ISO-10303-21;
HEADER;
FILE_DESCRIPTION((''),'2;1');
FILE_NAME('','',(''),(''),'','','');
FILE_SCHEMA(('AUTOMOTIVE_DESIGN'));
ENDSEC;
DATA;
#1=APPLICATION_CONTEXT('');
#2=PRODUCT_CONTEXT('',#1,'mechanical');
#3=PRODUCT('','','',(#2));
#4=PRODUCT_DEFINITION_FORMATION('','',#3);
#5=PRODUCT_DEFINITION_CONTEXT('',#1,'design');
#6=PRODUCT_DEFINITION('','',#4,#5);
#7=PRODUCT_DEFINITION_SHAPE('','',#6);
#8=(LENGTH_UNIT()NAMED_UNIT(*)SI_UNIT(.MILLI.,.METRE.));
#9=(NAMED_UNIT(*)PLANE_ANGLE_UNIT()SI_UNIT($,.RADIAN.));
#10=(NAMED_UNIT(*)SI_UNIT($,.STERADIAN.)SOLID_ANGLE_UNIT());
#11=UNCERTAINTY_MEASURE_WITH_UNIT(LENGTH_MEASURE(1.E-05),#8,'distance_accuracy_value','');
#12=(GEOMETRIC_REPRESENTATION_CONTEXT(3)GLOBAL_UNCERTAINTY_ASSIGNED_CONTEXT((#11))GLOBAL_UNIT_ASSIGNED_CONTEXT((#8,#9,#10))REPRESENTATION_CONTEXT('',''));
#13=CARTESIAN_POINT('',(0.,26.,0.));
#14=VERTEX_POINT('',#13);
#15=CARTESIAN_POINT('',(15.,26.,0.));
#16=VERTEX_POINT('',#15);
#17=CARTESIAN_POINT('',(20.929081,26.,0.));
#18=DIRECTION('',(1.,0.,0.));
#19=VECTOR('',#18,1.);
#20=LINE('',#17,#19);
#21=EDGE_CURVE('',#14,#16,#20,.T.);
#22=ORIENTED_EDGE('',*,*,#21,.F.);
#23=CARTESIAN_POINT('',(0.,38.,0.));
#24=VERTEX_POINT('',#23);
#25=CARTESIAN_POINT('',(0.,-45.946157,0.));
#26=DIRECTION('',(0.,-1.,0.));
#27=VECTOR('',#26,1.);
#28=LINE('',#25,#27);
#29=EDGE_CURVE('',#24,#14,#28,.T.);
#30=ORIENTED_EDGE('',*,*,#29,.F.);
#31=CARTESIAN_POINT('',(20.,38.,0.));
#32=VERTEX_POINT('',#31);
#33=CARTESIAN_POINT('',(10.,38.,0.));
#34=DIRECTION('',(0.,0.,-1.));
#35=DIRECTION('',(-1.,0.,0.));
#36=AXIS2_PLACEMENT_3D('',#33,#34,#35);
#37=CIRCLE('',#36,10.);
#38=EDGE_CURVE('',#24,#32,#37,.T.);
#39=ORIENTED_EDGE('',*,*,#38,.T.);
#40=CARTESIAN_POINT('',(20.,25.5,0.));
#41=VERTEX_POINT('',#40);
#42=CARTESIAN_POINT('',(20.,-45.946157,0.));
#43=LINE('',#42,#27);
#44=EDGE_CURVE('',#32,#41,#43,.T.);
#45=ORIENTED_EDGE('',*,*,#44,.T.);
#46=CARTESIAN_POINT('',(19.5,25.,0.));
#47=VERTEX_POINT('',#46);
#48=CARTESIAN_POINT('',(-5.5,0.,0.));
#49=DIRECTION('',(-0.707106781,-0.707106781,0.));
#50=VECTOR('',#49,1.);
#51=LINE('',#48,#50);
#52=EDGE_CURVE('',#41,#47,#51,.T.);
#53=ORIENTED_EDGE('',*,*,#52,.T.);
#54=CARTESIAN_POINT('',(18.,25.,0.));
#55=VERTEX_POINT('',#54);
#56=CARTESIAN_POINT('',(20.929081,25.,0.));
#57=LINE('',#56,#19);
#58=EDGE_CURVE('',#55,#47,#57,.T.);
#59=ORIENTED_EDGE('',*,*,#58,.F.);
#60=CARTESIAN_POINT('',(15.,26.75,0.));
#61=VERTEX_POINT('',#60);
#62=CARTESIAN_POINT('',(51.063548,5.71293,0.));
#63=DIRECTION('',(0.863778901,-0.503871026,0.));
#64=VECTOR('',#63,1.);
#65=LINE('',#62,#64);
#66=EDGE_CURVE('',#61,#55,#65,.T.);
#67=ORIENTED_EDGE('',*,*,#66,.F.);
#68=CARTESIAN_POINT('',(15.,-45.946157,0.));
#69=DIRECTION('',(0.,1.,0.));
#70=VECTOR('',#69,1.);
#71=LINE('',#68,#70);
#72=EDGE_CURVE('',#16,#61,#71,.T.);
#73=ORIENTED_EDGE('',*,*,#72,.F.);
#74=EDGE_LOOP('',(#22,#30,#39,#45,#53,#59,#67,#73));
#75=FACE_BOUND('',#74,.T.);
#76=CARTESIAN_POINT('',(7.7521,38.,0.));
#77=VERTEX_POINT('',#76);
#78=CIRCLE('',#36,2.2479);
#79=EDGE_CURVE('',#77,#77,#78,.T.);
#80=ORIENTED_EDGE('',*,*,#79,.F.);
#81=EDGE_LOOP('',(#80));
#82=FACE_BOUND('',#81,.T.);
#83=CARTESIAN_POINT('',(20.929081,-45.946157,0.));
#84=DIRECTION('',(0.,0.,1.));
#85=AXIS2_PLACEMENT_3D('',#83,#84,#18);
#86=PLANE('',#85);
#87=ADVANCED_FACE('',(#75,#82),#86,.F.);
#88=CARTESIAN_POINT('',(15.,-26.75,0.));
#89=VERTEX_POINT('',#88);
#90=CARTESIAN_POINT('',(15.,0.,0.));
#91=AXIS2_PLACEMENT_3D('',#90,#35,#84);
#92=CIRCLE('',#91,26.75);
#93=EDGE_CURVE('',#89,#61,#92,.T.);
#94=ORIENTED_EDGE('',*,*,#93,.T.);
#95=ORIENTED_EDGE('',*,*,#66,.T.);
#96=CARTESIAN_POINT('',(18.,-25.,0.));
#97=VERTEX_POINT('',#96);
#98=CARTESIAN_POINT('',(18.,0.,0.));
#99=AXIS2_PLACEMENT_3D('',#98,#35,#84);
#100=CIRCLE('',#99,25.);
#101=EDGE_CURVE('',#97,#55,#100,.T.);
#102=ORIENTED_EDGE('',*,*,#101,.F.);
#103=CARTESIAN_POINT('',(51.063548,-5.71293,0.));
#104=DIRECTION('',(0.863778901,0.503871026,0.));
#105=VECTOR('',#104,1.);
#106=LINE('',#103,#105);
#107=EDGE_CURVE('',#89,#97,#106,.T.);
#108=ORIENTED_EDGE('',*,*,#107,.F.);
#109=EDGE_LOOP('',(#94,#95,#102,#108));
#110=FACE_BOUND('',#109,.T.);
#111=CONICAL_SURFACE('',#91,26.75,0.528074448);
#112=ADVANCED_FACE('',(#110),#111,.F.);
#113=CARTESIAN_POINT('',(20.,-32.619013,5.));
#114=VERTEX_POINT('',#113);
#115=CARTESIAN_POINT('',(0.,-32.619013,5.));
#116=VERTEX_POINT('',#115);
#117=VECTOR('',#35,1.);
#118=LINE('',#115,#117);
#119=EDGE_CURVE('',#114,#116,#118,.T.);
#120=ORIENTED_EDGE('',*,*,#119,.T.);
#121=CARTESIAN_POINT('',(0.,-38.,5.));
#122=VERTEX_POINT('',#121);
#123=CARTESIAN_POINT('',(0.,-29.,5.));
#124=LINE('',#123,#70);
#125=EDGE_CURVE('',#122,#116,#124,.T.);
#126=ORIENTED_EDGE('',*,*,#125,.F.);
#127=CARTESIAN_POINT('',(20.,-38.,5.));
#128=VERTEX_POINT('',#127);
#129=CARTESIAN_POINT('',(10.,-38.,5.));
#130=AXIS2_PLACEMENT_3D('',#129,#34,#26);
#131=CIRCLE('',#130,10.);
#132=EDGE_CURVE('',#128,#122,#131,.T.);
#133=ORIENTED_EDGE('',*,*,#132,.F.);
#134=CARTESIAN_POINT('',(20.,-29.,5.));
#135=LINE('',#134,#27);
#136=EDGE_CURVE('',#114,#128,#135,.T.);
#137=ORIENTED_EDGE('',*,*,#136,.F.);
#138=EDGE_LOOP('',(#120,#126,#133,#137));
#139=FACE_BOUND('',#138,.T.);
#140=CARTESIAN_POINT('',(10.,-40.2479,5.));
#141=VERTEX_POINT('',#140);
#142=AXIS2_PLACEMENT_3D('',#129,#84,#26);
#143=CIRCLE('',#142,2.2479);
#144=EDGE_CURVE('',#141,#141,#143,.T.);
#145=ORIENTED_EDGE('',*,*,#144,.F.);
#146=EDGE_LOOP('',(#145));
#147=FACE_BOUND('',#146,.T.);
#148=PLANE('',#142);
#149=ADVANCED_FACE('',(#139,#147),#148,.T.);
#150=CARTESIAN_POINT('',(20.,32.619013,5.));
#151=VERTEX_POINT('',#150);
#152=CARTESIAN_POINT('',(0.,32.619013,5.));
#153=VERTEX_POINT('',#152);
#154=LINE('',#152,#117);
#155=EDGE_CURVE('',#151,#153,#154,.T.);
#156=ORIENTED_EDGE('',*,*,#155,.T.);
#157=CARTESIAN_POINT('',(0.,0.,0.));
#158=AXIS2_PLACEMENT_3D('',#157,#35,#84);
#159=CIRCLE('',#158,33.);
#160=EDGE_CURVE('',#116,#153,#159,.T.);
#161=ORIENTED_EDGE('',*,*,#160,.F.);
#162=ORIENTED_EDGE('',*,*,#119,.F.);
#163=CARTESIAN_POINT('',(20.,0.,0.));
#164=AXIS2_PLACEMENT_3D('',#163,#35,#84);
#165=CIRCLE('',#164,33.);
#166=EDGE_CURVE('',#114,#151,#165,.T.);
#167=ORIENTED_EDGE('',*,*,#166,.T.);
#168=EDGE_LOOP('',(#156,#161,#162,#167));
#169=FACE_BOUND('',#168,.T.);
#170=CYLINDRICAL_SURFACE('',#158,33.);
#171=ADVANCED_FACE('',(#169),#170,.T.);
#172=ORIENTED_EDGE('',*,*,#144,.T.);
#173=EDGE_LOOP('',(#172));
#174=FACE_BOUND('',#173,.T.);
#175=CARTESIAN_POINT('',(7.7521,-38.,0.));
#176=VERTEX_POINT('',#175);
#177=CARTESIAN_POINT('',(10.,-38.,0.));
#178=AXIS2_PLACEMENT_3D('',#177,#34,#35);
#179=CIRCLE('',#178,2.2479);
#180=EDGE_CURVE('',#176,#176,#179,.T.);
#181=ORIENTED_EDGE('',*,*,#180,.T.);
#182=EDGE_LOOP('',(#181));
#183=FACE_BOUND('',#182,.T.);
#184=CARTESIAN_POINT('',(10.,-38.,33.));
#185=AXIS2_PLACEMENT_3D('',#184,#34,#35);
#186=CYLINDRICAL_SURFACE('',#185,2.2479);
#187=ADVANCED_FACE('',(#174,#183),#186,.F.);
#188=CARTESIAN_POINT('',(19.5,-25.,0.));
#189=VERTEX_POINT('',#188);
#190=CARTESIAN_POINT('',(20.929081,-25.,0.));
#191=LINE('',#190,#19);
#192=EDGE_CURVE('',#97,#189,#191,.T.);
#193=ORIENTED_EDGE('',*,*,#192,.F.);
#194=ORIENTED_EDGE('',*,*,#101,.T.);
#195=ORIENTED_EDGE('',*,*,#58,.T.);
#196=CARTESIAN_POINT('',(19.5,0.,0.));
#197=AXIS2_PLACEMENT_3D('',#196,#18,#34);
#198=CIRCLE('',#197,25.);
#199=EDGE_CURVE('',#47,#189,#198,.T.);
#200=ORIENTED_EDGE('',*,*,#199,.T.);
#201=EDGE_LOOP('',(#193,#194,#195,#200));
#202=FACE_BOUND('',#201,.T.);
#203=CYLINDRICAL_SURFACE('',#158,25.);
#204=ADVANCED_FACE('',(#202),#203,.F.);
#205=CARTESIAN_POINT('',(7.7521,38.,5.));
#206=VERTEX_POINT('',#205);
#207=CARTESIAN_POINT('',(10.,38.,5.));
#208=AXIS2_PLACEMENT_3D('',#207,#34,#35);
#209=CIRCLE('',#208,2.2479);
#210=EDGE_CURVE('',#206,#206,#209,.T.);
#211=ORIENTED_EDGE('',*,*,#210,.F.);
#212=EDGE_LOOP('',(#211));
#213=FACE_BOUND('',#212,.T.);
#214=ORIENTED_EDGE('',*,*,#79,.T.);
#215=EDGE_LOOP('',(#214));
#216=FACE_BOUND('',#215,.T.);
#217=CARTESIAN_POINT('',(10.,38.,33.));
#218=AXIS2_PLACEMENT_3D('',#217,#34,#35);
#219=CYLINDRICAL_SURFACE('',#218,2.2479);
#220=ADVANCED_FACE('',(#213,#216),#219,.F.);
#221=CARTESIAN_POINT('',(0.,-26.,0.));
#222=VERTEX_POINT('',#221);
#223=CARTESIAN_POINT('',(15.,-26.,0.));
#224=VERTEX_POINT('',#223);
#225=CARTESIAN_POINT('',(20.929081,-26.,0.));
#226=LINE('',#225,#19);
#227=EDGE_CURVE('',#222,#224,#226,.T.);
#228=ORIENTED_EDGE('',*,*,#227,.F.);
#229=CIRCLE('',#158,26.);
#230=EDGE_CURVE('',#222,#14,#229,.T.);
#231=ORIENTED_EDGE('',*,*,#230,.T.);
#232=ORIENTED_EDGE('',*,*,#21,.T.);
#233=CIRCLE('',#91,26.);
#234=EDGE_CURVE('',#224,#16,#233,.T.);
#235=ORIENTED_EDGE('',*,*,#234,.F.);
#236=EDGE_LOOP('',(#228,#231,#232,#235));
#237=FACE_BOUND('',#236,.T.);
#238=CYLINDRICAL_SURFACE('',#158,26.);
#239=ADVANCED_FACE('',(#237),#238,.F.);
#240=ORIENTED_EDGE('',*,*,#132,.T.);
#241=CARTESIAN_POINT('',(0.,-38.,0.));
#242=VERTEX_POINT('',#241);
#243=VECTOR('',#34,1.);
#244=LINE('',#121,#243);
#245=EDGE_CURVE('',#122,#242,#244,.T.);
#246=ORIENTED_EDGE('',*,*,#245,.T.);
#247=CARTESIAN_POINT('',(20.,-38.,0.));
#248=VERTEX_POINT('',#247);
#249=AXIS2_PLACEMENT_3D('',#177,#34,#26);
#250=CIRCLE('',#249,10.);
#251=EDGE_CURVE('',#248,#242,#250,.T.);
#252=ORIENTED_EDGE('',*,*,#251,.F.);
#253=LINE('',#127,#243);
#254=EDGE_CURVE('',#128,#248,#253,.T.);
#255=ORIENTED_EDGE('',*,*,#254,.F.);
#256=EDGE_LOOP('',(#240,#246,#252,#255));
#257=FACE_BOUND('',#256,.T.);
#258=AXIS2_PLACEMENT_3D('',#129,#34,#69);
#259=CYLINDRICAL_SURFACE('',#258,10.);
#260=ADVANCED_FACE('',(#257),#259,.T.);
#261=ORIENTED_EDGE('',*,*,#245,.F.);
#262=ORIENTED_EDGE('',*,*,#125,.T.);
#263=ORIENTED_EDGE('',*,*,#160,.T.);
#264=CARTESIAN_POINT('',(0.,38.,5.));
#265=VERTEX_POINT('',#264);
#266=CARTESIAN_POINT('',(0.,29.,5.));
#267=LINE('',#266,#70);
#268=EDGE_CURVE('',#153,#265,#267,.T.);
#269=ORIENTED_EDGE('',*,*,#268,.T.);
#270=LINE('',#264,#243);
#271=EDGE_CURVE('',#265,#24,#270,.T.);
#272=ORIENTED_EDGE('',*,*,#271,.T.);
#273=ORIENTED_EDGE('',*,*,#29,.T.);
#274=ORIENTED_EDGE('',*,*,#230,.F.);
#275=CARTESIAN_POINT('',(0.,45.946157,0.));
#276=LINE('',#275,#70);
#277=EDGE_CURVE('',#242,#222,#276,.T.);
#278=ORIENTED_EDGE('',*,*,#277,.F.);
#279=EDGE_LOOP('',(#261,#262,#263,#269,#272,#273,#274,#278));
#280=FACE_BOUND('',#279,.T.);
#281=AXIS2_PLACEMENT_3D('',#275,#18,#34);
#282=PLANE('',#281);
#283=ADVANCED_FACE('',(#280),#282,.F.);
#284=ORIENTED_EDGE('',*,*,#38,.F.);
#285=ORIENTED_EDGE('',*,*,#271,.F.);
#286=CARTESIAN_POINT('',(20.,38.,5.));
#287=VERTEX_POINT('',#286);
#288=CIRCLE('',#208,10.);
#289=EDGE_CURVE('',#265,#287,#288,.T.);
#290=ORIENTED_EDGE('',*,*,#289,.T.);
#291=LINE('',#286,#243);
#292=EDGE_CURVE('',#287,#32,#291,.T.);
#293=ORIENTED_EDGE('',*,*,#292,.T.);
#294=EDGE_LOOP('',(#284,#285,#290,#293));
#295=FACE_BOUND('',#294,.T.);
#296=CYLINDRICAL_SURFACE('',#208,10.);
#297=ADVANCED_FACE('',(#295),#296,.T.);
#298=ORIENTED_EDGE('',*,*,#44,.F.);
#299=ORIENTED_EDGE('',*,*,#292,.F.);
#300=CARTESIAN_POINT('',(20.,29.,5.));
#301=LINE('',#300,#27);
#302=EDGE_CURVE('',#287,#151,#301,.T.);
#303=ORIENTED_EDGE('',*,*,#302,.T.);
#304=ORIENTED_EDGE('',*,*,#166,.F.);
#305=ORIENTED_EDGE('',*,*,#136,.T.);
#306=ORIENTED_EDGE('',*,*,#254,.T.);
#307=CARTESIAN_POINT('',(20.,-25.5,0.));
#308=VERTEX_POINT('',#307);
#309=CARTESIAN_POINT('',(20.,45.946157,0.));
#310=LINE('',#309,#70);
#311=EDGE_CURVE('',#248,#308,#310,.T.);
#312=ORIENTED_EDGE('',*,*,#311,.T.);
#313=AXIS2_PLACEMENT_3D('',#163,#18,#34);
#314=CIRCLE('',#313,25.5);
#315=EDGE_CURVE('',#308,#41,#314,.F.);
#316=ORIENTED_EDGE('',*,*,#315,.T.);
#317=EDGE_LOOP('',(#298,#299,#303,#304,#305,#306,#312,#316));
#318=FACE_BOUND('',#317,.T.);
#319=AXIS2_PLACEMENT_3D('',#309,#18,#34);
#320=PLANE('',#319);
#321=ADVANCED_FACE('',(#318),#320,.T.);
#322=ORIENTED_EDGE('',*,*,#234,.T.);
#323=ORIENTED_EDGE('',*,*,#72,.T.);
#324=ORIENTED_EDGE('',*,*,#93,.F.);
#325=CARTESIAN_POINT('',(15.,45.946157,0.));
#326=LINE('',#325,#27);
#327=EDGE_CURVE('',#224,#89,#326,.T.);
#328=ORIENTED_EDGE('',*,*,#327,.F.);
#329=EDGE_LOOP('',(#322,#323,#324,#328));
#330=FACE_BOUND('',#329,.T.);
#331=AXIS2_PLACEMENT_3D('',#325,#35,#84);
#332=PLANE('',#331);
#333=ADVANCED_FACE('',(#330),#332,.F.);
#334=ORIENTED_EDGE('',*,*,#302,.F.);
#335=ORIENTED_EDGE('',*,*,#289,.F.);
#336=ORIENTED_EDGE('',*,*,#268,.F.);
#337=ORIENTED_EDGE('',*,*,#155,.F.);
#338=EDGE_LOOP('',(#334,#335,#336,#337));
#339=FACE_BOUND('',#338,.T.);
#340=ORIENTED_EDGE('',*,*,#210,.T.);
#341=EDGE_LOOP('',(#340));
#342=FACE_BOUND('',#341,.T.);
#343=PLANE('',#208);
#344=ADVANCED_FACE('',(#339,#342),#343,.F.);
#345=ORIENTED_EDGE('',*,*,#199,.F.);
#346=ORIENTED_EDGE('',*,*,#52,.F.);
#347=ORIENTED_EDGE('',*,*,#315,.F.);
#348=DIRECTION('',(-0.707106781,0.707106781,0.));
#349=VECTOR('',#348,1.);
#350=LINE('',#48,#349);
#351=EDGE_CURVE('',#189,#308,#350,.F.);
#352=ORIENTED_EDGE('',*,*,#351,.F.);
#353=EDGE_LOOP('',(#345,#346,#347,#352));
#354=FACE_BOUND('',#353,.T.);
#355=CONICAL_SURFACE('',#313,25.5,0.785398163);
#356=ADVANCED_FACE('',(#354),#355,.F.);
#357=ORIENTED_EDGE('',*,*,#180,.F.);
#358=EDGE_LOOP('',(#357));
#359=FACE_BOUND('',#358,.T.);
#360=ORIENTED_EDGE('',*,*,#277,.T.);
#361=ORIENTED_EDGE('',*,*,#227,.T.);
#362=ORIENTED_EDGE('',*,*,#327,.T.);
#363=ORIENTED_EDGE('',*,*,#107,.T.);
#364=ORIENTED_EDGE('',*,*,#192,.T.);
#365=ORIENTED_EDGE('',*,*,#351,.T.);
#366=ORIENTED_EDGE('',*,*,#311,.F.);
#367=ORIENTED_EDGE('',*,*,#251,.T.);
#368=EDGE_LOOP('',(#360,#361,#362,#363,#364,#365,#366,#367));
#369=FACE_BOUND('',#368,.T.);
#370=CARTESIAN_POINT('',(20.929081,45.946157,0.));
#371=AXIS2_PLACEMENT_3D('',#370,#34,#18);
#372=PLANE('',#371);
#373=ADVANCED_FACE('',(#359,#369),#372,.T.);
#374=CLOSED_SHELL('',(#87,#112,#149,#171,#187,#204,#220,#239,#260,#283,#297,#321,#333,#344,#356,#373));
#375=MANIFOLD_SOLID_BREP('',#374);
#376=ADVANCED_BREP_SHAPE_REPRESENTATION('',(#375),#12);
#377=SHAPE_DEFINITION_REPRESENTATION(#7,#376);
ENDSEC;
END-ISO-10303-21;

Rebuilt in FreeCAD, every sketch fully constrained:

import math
import FreeCAD as App
import Part
import Sketcher


def edges_at(feature, points):
    """Names of the edges that pass closest to the given points."""
    edges = feature.Shape.Edges
    near = lambda p: min(range(len(edges)), key=lambda i: edges[i].distToShape(Part.Vertex(*p))[0])
    return sorted({f"Edge{near(p) + 1}" for p in points})

doc = App.newDocument("Part")
body = doc.addObject("PartDesign::Body", "Body")

sketch1 = doc.addObject("Sketcher::SketchObject", "Sketch")
body.addObject(sketch1)
sketch1.AttachmentSupport = (doc.XY_Plane, [""])
sketch1.MapMode = "FlatFace"
sketch1.addGeometry(Part.LineSegment(App.Vector(15, 26, 0), App.Vector(15, 26.8, 0)), False)
sketch1.addGeometry(Part.LineSegment(App.Vector(15, 26.8, 0), App.Vector(18, 25, 0)), False)
sketch1.addGeometry(Part.LineSegment(App.Vector(18, 25, 0), App.Vector(20, 25, 0)), False)
sketch1.addGeometry(Part.LineSegment(App.Vector(20, 25, 0), App.Vector(20, 33, 0)), False)
sketch1.addGeometry(Part.LineSegment(App.Vector(20, 33, 0), App.Vector(0, 33, 0)), False)
sketch1.addGeometry(Part.LineSegment(App.Vector(0, 33, 0), App.Vector(0, 26, 0)), False)
sketch1.addGeometry(Part.LineSegment(App.Vector(0, 26, 0), App.Vector(15, 26, 0)), False)
sketch1.addConstraint(Sketcher.Constraint("Coincident", 0, 2, 1, 1))
sketch1.addConstraint(Sketcher.Constraint("Coincident", 1, 2, 2, 1))
sketch1.addConstraint(Sketcher.Constraint("Coincident", 2, 2, 3, 1))
sketch1.addConstraint(Sketcher.Constraint("Coincident", 3, 2, 4, 1))
sketch1.addConstraint(Sketcher.Constraint("Coincident", 4, 2, 5, 1))
sketch1.addConstraint(Sketcher.Constraint("Coincident", 5, 2, 6, 1))
sketch1.addConstraint(Sketcher.Constraint("Coincident", 6, 2, 0, 1))
sketch1.addConstraint(Sketcher.Constraint("Vertical", 0))
sketch1.addConstraint(Sketcher.Constraint("Horizontal", 2))
sketch1.addConstraint(Sketcher.Constraint("Vertical", 3))
sketch1.addConstraint(Sketcher.Constraint("Horizontal", 4))
sketch1.addConstraint(Sketcher.Constraint("Vertical", 5))
sketch1.addConstraint(Sketcher.Constraint("Horizontal", 6))
sketch1.addConstraint(Sketcher.Constraint("PointOnObject", 4, 2, -2))
sketch1.addConstraint(Sketcher.Constraint("DistanceX", 2, 1, 2, 2, 2.0))
sketch1.addConstraint(Sketcher.Constraint("DistanceX", 4, 2, 4, 1, 20.0))
sketch1.addConstraint(Sketcher.Constraint("DistanceX", 6, 1, 6, 2, 15.0))
sketch1.addConstraint(Sketcher.Constraint("DistanceY", 3, 1, 3, 2, 8.0))
sketch1.addConstraint(Sketcher.Constraint("DistanceY", 5, 2, 5, 1, 7.0))
sketch1.addConstraint(Sketcher.Constraint("DistanceY", -1, 1, 1, 2, 25.0))
sketch1.addConstraint(Sketcher.Constraint("DistanceY", 0, 1, 0, 2, 0.75))
revolution = doc.addObject("PartDesign::Revolution", "Revolution")
body.addObject(revolution)
revolution.Profile = sketch1
revolution.ReferenceAxis = (sketch1, ["H_Axis"])
revolution.Angle = 180

sketch2 = doc.addObject("Sketcher::SketchObject", "Sketch001")
body.addObject(sketch2)
sketch2.AttachmentSupport = (doc.XY_Plane, [""])
sketch2.MapMode = "FlatFace"
sketch2.addGeometry(Part.LineSegment(App.Vector(20, 29, 0), App.Vector(0, 29, 0)), False)
sketch2.addGeometry(Part.LineSegment(App.Vector(0, 29, 0), App.Vector(0, 38, 0)), False)
sketch2.addGeometry(Part.ArcOfCircle(Part.Circle(App.Vector(10, 38, 0), App.Vector(0, 0, 1), 10), math.radians(0), math.radians(180)), False)
sketch2.addGeometry(Part.LineSegment(App.Vector(20, 38, 0), App.Vector(20, 29, 0)), False)
sketch2.addConstraint(Sketcher.Constraint("Coincident", 0, 2, 1, 1))
sketch2.addConstraint(Sketcher.Constraint("Tangent", 1, 2, 2, 2))
sketch2.addConstraint(Sketcher.Constraint("Tangent", 2, 1, 3, 1))
sketch2.addConstraint(Sketcher.Constraint("Coincident", 3, 2, 0, 1))
sketch2.addConstraint(Sketcher.Constraint("Horizontal", 0))
sketch2.addConstraint(Sketcher.Constraint("Vertical", 1))
sketch2.addConstraint(Sketcher.Constraint("Vertical", 3))
sketch2.addConstraint(Sketcher.Constraint("PointOnObject", 0, 2, -2))
sketch2.addConstraint(Sketcher.Constraint("Radius", 2, 10.0))
sketch2.addConstraint(Sketcher.Constraint("DistanceY", 1, 1, 1, 2, 9.0))
sketch2.addConstraint(Sketcher.Constraint("DistanceY", -1, 1, 2, 3, 38.0))
pad1 = doc.addObject("PartDesign::Pad", "Pad")
body.addObject(pad1)
pad1.Profile = sketch2
pad1.Length = 5

sketch3 = doc.addObject("Sketcher::SketchObject", "Sketch002")
body.addObject(sketch3)
sketch3.AttachmentSupport = (doc.XY_Plane, [""])
sketch3.MapMode = "FlatFace"
sketch3.addGeometry(Part.LineSegment(App.Vector(0, -29, 0), App.Vector(20, -29, 0)), False)
sketch3.addGeometry(Part.LineSegment(App.Vector(20, -29, 0), App.Vector(20, -38, 0)), False)
sketch3.addGeometry(Part.ArcOfCircle(Part.Circle(App.Vector(10, -38, 0), App.Vector(0, 0, 1), 10), math.radians(180), math.radians(360)), False)
sketch3.addGeometry(Part.LineSegment(App.Vector(0, -38, 0), App.Vector(0, -29, 0)), False)
sketch3.addConstraint(Sketcher.Constraint("Coincident", 0, 2, 1, 1))
sketch3.addConstraint(Sketcher.Constraint("Tangent", 1, 2, 2, 2))
sketch3.addConstraint(Sketcher.Constraint("Tangent", 2, 1, 3, 1))
sketch3.addConstraint(Sketcher.Constraint("Coincident", 3, 2, 0, 1))
sketch3.addConstraint(Sketcher.Constraint("Horizontal", 0))
sketch3.addConstraint(Sketcher.Constraint("Vertical", 1))
sketch3.addConstraint(Sketcher.Constraint("Vertical", 3))
sketch3.addConstraint(Sketcher.Constraint("PointOnObject", 2, 1, -2))
sketch3.addConstraint(Sketcher.Constraint("Radius", 2, 10.0))
sketch3.addConstraint(Sketcher.Constraint("DistanceY", 1, 2, 1, 1, 9.0))
sketch3.addConstraint(Sketcher.Constraint("DistanceY", 2, 3, -1, 1, 38.0))
pad2 = doc.addObject("PartDesign::Pad", "Pad001")
body.addObject(pad2)
pad2.Profile = sketch3
pad2.Length = 5

sketch4 = doc.addObject("Sketcher::SketchObject", "Sketch003")
body.addObject(sketch4)
sketch4.AttachmentSupport = (doc.XY_Plane, [""])
sketch4.MapMode = "FlatFace"
sketch4.addGeometry(Part.Circle(App.Vector(10, 38, 0), App.Vector(0, 0, 1), 2.2), False)
sketch4.addGeometry(Part.Circle(App.Vector(10, -38, 0), App.Vector(0, 0, 1), 2.2), False)
sketch4.addConstraint(Sketcher.Constraint("Equal", 0, 1))
sketch4.addConstraint(Sketcher.Constraint("Symmetric", 0, 3, 1, 3, -1))
sketch4.addConstraint(Sketcher.Constraint("DistanceX", -1, 1, 0, 3, 10.0))
sketch4.addConstraint(Sketcher.Constraint("DistanceY", -1, 1, 0, 3, 38.0))
sketch4.addConstraint(Sketcher.Constraint("Diameter", 0, 4.4958))
pocket1 = doc.addObject("PartDesign::Pocket", "Pocket")
body.addObject(pocket1)
pocket1.Profile = sketch4
pocket1.Type = "ThroughAll"
pocket1.Reversed = True
doc.recompute()

chamfer = doc.addObject("PartDesign::Chamfer", "Chamfer")
body.addObject(chamfer)
chamfer.Base = (pocket1, edges_at(pocket1, [(20, 0, 25)]))
chamfer.Size = 0.5

doc.recompute()
